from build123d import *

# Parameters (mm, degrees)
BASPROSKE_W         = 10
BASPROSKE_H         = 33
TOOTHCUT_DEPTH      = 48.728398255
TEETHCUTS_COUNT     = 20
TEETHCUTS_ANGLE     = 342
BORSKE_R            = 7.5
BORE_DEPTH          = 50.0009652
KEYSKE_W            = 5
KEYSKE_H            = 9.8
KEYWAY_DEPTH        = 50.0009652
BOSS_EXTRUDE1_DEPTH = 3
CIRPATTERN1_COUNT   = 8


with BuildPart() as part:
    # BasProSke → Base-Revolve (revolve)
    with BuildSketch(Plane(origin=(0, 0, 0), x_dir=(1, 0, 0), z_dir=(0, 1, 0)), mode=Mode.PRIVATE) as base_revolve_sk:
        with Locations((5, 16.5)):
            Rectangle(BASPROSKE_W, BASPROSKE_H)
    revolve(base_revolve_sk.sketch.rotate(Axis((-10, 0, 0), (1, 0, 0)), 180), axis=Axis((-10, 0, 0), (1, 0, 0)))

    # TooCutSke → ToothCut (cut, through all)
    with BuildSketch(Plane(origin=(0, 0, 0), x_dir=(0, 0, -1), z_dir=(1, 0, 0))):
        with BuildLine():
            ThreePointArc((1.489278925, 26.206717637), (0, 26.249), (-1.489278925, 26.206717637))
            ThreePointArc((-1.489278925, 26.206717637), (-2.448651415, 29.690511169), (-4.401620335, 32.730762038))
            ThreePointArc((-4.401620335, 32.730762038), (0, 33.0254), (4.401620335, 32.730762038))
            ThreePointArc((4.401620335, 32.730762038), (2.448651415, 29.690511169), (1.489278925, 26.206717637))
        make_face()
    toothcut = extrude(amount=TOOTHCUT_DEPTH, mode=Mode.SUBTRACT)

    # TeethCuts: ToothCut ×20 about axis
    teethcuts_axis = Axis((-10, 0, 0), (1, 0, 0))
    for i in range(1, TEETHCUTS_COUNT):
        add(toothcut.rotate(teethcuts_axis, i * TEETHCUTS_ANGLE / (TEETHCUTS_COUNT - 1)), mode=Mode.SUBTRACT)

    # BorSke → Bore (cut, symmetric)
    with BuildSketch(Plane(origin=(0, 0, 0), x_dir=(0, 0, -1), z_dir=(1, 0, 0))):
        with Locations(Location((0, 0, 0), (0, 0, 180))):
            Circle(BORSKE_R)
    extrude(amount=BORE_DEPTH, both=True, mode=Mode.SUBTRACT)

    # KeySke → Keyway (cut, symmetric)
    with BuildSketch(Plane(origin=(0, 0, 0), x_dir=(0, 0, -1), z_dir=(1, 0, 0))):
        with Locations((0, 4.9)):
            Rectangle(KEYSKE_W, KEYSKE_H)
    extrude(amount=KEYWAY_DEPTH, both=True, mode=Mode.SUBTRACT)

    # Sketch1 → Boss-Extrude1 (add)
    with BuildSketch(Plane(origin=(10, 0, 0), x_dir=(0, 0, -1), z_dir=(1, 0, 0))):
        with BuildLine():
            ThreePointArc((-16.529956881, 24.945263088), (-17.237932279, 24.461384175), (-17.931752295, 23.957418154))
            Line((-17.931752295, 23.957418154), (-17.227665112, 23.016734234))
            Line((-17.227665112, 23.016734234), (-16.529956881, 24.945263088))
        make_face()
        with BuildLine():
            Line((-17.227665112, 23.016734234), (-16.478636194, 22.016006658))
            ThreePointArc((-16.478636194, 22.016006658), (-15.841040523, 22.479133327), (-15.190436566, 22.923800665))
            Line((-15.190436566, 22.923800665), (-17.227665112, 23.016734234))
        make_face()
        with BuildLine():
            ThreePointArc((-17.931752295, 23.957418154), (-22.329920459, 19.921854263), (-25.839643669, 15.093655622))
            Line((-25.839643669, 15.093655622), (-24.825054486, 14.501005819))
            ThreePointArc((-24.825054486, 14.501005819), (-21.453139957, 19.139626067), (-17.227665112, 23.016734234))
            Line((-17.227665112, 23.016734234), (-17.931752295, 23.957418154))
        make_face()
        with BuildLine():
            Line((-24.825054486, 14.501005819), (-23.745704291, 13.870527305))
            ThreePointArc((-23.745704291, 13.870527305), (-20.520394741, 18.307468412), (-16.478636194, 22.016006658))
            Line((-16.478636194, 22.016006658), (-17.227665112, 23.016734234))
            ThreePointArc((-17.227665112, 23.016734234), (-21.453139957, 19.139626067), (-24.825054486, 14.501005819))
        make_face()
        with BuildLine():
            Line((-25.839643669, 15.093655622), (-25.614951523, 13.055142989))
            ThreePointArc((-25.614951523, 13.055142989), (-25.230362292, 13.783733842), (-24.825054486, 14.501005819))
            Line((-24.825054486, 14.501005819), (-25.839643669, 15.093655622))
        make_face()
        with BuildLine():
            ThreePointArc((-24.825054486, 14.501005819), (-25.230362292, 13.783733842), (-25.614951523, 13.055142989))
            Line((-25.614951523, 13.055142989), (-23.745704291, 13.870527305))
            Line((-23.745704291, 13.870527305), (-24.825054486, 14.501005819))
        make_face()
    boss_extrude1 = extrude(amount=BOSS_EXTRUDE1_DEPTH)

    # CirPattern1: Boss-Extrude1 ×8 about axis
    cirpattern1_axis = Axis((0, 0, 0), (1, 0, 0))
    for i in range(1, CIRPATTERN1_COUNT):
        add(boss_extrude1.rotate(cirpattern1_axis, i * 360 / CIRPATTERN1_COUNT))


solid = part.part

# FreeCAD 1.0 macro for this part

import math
import FreeCAD as App
import Part
import Sketcher

V = App.Vector
Q = App.Units.Quantity


def add_polygon(sketch, points):
    """Adds a closed chain of lines whose ends are joined by coincident constraints."""
    first, n = sketch.GeometryCount, len(points)
    for a, b in zip(points, points[1:] + points[:1]):
        sketch.addGeometry(Part.LineSegment(App.Vector(*a, 0), App.Vector(*b, 0)), False)
    for i in range(n):
        sketch.addConstraint(Sketcher.Constraint("Coincident", first + i, 2, first + (i + 1) % n, 1))

doc = App.newDocument("Part")
body = doc.addObject("PartDesign::Body", "Body")

sketch1 = body.newObject("Sketcher::SketchObject", "Sketch")
sketch1.AttachmentSupport = (doc.getObject("XZ_Plane"), [""])
sketch1.MapMode = "FlatFace"
add_polygon(sketch1, [(0, -33), (0, 0), (10, 0), (10, -33)])
sketch1.addConstraint([
    Sketcher.Constraint("Vertical", 0),
    Sketcher.Constraint("Horizontal", 1),
    Sketcher.Constraint("Vertical", 2),
    Sketcher.Constraint("Horizontal", 3),
    Sketcher.Constraint("Coincident", 0, 2, -1, 1),
    Sketcher.Constraint("DistanceX", 1, 1, 1, 2, Q("10 mm")),
    Sketcher.Constraint("DistanceY", 0, 1, 0, 2, Q("33 mm")),
])
revolution = body.newObject("PartDesign::Revolution", "Revolution")
revolution.Profile = sketch1
revolution.ReferenceAxis = (sketch1, ["H_Axis"])
revolution.Angle = 360

sketch2 = body.newObject("Sketcher::SketchObject", "Sketch001")
sketch2.AttachmentSupport = (doc.getObject("YZ_Plane"), [""])
sketch2.MapMode = "FlatFace"
sketch2.addGeometry([
    Part.ArcOfCircle(Part.Circle(V(0, 0, 0), V(0, 0, 1), 26.249), math.radians(-3.252514), math.radians(3.252514)),
    Part.ArcOfCircle(Part.Circle(V(24.798951, -13.406418, 0), V(0, 0, 1), 12), math.radians(48.625019), math.radians(83.262895)),
    Part.ArcOfCircle(Part.Circle(V(0, 0, 0), V(0, 0, 1), 33.0254), math.radians(-7.659164), math.radians(7.659164)),
    Part.ArcOfCircle(Part.Circle(V(24.798951, 13.406418, 0), V(0, 0, 1), 12), math.radians(-83.262895), math.radians(-48.625019)),
], False)
sketch2.addConstraint([
    Sketcher.Constraint("Coincident", 0, 1, 1, 2),
    Sketcher.Constraint("Coincident", 1, 1, 2, 1),
    Sketcher.Constraint("Coincident", 2, 2, 3, 2),
    Sketcher.Constraint("Coincident", 3, 1, 0, 2),
    Sketcher.Constraint("Coincident", 0, 3, -1, 1),
    Sketcher.Constraint("Coincident", 2, 3, -1, 1),
    Sketcher.Constraint("Equal", 1, 3),
    Sketcher.Constraint("Symmetric", 1, 3, 3, 3, -1),
    Sketcher.Constraint("Radius", 1, Q("12 mm")),
    Sketcher.Constraint("Radius", 0, Q("26.249 mm")),
    Sketcher.Constraint("Radius", 2, Q("33.0254 mm")),
    Sketcher.Constraint("DistanceY", 0, 1, 2, 2, Q("5.890899 mm")),
    Sketcher.Constraint("DistanceX", -1, 1, 1, 3, Q("24.798951 mm")),
])
pocket1 = body.newObject("PartDesign::Pocket", "Pocket")
pocket1.Profile = sketch2
pocket1.Type = "ThroughAll"
pocket1.Reversed = True
doc.recompute()

polarpattern = body.newObject("PartDesign::PolarPattern", "PolarPattern")
polarpattern.Originals = [pocket1]
polarpattern.Axis = (doc.getObject("X_Axis"), [""])
polarpattern.Angle = 360
polarpattern.Occurrences = 20
body.Tip = polarpattern

sketch3 = body.newObject("Sketcher::SketchObject", "Sketch002")
sketch3.AttachmentSupport = (doc.getObject("YZ_Plane"), [""])
sketch3.MapMode = "FlatFace"
sketch3.addGeometry(Part.Circle(V(0, 0, 0), V(0, 0, 1), 7.5), False)
sketch3.addConstraint([
    Sketcher.Constraint("Coincident", 0, 3, -1, 1),
    Sketcher.Constraint("Diameter", 0, Q("15 mm")),
])
pocket2 = body.newObject("PartDesign::Pocket", "Pocket001")
pocket2.Profile = sketch3
pocket2.Length = 100.00193
pocket2.Midplane = True

sketch4 = body.newObject("Sketcher::SketchObject", "Sketch003")
sketch4.AttachmentSupport = (doc.getObject("YZ_Plane"), [""])
sketch4.MapMode = "FlatFace"
add_polygon(sketch4, [(9.8, 2.5), (0, 2.5), (0, -2.5), (9.8, -2.5)])
sketch4.addConstraint([
    Sketcher.Constraint("Horizontal", 0),
    Sketcher.Constraint("Vertical", 1),
    Sketcher.Constraint("Horizontal", 2),
    Sketcher.Constraint("Vertical", 3),
    Sketcher.Constraint("Symmetric", 0, 2, 1, 2, -1, 1),
    Sketcher.Constraint("DistanceY", 1, 2, 1, 1, Q("5 mm")),
    Sketcher.Constraint("DistanceX", 0, 2, 0, 1, Q("9.8 mm")),
])
pocket3 = body.newObject("PartDesign::Pocket", "Pocket002")
pocket3.Profile = sketch4
pocket3.Length = 100.00193
pocket3.Midplane = True

sketch5 = body.newObject("Sketcher::SketchObject", "Sketch004")
sketch5.AttachmentSupport = (doc.getObject("YZ_Plane"), [""])
sketch5.MapMode = "FlatFace"
sketch5.AttachmentOffset = App.Placement(V(0, 0, 10), App.Rotation())
sketch5.addGeometry([
    Part.ArcOfCircle(Part.Circle(V(0.000001, 0, 0), V(0, 0, 1), 29.924999), math.radians(33.530411), math.radians(36.814279)),
    Part.ArcOfCircle(Part.Circle(V(0, 0, 0), V(0, 0, 1), 29.925), math.radians(36.814279), math.radians(59.709609)),
    Part.LineSegment(V(15.093656, 25.839644, 0), V(13.055143, 25.614952, 0)),
    Part.LineSegment(V(13.055143, 25.614952, 0), V(13.870527, 23.745704, 0)),
    Part.ArcOfCircle(Part.Circle(V(0, 0, 0), V(0, 0, 1), 27.5), math.radians(36.814279), math.radians(59.709609)),
    Part.ArcOfCircle(Part.Circle(V(0, 0, 0), V(0, 0, 1), 27.5), math.radians(33.530411), math.radians(36.814279)),
    Part.LineSegment(V(22.923801, 15.190437, 0), V(23.016734, 17.227665, 0)),
    Part.LineSegment(V(23.016734, 17.227665, 0), V(24.945263, 16.529957, 0)),
], False)
sketch5.addConstraint([
    Sketcher.Constraint("Tangent", 0, 2, 1, 1),
    Sketcher.Constraint("Coincident", 1, 2, 2, 1),
    Sketcher.Constraint("Coincident", 2, 2, 3, 1),
    Sketcher.Constraint("Coincident", 3, 2, 4, 2),
    Sketcher.Constraint("Tangent", 4, 1, 5, 2),
    Sketcher.Constraint("Coincident", 5, 1, 6, 1),
    Sketcher.Constraint("Coincident", 6, 2, 7, 1),
    Sketcher.Constraint("Coincident", 7, 2, 0, 1),
    Sketcher.Constraint("Coincident", 0, 3, -1, 1),
    Sketcher.Constraint("Coincident", 4, 3, -1, 1),
    Sketcher.Constraint("Equal", 0, 1),
    Sketcher.Constraint("Equal", 4, 5),
    Sketcher.Constraint("Equal", 3, 6),
    Sketcher.Constraint("Equal", 2, 7),
    Sketcher.Constraint("Radius", 4, Q("27.5 mm")),
    Sketcher.Constraint("Radius", 0, Q("29.924999 mm")),
    Sketcher.Constraint("DistanceX", -1, 1, 5, 1, Q("22.923801 mm")),
    Sketcher.Constraint("DistanceY", 0, 2, 2, 2, Q("7.683199 mm")),
    Sketcher.Constraint("DistanceY", 5, 1, 4, 1, Q("1.2882 mm")),
    Sketcher.Constraint("Distance", 2, Q("2.050858 mm")),
    Sketcher.Constraint("DistanceX", -1, 1, 0, 2, Q("23.957418 mm")),
    Sketcher.Constraint("DistanceY", 0, 2, 1, 2, Q("7.907891 mm")),
    Sketcher.Constraint("DistanceX", 3, 2, 1, 2, Q("1.223128 mm")),
    Sketcher.Constraint("DistanceY", 6, 2, 3, 2, Q("6.518039 mm")),
])
pad1 = body.newObject("PartDesign::Pad", "Pad")
pad1.Profile = sketch5
pad1.Length = 3
doc.recompute()

polarpattern2 = body.newObject("PartDesign::PolarPattern", "PolarPattern001")
polarpattern2.Originals = [pad1]
polarpattern2.Axis = (doc.getObject("X_Axis"), [""])
polarpattern2.Angle = 360
polarpattern2.Occurrences = 8
body.Tip = polarpattern2

doc.recompute()
